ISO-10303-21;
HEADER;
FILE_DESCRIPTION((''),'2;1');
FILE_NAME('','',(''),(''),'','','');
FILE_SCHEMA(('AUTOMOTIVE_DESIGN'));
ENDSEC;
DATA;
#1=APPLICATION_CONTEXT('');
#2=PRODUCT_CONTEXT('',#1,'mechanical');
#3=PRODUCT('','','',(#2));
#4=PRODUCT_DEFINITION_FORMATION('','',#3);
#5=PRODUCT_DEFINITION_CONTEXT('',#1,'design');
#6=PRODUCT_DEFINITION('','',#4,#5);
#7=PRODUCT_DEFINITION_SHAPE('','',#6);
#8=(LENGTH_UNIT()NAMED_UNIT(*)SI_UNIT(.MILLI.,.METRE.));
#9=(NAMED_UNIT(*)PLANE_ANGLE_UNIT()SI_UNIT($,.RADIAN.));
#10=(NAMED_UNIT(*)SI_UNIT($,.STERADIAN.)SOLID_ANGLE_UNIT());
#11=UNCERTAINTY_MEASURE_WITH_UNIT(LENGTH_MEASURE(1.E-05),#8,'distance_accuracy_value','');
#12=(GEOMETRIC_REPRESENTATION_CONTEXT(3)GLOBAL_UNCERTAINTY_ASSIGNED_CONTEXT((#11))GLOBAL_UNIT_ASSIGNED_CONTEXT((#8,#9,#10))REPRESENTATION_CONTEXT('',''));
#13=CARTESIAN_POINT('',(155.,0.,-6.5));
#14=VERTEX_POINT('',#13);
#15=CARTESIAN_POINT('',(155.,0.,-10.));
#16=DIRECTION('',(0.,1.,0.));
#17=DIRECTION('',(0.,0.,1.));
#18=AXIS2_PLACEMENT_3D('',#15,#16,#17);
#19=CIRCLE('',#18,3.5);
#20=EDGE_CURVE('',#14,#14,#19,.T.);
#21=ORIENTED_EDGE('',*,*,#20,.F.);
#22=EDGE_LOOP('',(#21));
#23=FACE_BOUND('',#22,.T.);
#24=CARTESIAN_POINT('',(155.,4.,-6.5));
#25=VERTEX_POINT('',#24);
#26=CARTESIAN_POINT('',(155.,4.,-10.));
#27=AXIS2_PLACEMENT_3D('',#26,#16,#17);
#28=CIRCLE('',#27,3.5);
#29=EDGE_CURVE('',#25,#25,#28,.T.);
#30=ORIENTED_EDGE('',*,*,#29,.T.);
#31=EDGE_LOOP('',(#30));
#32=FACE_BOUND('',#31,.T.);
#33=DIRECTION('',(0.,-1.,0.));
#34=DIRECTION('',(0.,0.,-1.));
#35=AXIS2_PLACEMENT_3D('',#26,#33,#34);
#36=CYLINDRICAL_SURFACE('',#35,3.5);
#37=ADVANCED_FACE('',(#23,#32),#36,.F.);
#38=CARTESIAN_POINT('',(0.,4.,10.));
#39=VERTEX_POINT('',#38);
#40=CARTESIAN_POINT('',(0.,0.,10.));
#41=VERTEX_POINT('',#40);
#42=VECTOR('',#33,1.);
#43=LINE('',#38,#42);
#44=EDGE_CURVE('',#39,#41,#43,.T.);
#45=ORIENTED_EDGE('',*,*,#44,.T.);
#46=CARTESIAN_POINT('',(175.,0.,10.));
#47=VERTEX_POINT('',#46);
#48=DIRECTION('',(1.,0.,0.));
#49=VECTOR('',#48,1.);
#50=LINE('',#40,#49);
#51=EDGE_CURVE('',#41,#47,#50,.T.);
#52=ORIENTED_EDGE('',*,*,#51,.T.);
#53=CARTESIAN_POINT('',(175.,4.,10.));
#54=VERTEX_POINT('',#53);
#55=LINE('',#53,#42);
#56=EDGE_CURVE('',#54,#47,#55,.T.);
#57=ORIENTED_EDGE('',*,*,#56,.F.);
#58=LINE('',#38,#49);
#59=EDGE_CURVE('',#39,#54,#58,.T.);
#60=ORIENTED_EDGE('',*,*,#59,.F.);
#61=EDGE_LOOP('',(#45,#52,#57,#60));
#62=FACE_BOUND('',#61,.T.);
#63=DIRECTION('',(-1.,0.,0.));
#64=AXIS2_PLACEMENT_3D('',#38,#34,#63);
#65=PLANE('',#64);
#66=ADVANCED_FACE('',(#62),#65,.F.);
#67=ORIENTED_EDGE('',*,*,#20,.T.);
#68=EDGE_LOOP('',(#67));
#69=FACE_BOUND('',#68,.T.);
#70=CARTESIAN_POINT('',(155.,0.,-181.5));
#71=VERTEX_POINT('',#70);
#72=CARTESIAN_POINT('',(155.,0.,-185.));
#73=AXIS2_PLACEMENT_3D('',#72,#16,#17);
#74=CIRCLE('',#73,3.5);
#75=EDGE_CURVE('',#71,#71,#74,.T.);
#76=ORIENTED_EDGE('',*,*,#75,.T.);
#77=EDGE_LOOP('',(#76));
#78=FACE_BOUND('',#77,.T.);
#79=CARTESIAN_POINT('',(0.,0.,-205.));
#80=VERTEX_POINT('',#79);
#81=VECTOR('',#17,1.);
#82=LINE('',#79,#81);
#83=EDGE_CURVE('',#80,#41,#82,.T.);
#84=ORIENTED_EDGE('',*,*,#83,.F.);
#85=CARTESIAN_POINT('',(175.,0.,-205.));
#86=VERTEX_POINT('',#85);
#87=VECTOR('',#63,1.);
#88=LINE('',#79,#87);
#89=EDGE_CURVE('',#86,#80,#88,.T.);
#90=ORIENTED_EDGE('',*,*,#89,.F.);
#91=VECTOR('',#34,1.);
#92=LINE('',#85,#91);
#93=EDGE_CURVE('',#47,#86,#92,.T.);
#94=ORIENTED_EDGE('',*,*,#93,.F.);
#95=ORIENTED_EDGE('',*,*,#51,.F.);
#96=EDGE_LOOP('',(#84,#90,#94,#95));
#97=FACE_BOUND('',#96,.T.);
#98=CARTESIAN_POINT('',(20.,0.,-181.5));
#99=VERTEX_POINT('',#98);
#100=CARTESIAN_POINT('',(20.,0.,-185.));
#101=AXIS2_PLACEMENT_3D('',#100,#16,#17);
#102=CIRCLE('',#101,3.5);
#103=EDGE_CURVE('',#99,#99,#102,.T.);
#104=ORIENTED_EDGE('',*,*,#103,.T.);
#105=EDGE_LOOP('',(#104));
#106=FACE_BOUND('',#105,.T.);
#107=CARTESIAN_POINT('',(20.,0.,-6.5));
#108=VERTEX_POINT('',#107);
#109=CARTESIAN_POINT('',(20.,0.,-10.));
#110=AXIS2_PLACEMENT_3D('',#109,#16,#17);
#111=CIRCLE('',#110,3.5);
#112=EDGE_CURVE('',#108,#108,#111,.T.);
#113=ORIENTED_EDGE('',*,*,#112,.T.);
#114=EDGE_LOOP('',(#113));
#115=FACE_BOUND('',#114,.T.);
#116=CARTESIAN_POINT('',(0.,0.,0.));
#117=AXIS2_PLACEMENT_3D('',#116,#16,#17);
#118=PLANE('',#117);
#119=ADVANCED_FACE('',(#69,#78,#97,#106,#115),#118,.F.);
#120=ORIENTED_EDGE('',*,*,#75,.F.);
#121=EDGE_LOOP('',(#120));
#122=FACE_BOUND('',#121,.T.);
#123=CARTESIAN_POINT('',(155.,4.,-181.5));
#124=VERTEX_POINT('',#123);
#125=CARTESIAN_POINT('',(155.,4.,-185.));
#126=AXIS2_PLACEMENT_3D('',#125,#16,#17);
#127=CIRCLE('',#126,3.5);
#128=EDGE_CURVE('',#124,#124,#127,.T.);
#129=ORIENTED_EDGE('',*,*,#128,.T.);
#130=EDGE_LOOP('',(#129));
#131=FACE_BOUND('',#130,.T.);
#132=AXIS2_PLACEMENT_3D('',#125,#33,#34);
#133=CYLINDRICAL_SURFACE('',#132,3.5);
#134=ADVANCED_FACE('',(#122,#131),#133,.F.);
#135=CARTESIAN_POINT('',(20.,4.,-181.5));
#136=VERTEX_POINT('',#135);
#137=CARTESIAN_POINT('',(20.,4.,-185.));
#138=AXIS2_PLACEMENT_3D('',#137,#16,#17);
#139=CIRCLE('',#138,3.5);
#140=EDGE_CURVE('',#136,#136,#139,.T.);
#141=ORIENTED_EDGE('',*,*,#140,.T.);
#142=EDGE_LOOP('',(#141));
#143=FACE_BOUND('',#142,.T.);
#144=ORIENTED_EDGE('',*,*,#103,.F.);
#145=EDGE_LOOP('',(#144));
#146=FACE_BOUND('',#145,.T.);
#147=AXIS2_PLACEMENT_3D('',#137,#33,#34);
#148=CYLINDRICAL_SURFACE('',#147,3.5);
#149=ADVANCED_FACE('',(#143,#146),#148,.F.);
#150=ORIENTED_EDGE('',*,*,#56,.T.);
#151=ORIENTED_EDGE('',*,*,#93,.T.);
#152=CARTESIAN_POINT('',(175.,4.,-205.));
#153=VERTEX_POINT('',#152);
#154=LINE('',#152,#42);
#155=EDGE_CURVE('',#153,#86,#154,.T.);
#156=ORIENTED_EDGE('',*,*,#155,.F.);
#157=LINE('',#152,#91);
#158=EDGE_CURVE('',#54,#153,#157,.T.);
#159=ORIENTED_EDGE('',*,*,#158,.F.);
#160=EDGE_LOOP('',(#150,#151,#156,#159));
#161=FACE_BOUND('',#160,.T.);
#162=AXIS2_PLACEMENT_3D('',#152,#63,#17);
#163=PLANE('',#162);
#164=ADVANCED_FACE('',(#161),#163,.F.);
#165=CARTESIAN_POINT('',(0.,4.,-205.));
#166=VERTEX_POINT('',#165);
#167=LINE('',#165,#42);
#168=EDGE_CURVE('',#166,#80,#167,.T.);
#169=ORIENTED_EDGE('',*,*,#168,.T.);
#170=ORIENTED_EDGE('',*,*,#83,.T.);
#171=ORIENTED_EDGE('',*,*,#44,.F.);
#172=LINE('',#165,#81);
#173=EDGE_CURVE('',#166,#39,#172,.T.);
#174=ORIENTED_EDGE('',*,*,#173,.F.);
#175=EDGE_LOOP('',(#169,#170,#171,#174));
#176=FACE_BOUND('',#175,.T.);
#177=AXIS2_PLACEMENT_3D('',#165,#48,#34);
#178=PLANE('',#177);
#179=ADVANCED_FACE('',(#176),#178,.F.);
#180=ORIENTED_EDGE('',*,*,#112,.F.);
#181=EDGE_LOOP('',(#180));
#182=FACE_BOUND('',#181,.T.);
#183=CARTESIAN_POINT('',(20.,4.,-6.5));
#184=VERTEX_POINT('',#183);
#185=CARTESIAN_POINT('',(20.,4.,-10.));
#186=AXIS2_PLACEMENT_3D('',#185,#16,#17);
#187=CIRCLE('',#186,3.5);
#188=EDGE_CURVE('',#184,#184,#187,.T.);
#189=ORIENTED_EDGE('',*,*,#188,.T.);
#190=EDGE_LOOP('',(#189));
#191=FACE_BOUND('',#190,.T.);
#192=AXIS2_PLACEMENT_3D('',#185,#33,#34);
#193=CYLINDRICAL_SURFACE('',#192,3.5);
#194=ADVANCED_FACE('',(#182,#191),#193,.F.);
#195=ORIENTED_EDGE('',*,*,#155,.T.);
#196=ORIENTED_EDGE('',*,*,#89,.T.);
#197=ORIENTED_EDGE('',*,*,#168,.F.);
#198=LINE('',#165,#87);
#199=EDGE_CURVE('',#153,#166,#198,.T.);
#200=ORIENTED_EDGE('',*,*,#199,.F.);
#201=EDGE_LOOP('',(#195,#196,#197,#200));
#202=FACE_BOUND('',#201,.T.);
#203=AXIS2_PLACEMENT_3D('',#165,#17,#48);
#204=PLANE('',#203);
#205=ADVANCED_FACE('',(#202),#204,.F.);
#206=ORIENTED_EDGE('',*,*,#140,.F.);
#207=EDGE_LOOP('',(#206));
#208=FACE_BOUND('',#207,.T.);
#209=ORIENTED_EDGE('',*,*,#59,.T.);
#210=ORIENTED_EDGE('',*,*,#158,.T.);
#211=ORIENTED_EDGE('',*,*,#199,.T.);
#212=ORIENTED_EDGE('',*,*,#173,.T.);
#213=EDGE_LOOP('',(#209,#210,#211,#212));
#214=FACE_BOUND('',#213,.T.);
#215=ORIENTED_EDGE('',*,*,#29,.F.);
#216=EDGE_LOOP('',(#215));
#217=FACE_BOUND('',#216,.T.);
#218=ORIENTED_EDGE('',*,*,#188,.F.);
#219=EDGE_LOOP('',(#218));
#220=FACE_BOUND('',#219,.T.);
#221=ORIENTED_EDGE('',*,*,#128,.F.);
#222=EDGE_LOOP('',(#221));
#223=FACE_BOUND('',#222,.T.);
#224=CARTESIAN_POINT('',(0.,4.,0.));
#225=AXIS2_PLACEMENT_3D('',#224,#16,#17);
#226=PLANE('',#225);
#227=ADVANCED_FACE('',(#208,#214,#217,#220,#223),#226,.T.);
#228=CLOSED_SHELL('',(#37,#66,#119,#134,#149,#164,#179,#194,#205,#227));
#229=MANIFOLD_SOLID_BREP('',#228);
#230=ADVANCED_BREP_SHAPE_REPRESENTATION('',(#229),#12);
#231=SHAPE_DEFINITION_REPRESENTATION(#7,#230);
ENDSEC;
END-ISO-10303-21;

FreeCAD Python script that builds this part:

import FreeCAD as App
import Part
import Sketcher

V = App.Vector
Q = App.Units.Quantity

doc = App.newDocument("Part")
body = doc.addObject("PartDesign::Body", "Body")

# Sketch on XZ plane
sketch1 = doc.addObject("Sketcher::SketchObject", "Sketch")
body.addObject(sketch1)
sketch1.AttachmentSupport = (doc.XZ_Plane, [""])
sketch1.MapMode = "FlatFace"
sketch1.addGeometry([
    Part.LineSegment(V(0, -205, 0), V(0, 10, 0)),  # 0
    Part.LineSegment(V(0, 10, 0), V(175, 10, 0)),  # 1
    Part.LineSegment(V(175, 10, 0), V(175, -205, 0)),  # 2
    Part.LineSegment(V(175, -205, 0), V(0, -205, 0)),  # 3
    Part.Circle(V(20, -10, 0), V(0, 0, 1), 3.5),  # 4
    Part.Circle(V(155, -10, 0), V(0, 0, 1), 3.5),  # 5
    Part.Circle(V(20, -185, 0), V(0, 0, 1), 3.5),  # 6
    Part.Circle(V(155, -185, 0), V(0, 0, 1), 3.5),  # 7
], False)
sketch1.addConstraint([
    Sketcher.Constraint("Coincident", 0, 2, 1, 1),
    Sketcher.Constraint("Coincident", 1, 2, 2, 1),
    Sketcher.Constraint("Coincident", 2, 2, 3, 1),
    Sketcher.Constraint("Coincident", 3, 2, 0, 1),
    Sketcher.Constraint("Vertical", 0),
    Sketcher.Constraint("Horizontal", 1),
    Sketcher.Constraint("Vertical", 2),
    Sketcher.Constraint("Horizontal", 3),
    Sketcher.Constraint("Equal", 4, 5),
    Sketcher.Constraint("Equal", 5, 6),
    Sketcher.Constraint("Equal", 6, 7),
    Sketcher.Constraint("PointOnObject", 0, 2, -2),
    Sketcher.Constraint("Horizontal", 4, 3, 5, 3),
    Sketcher.Constraint("Horizontal", 6, 3, 7, 3),
    Sketcher.Constraint("Vertical", 4, 3, 6, 3),
    Sketcher.Constraint("Vertical", 5, 3, 7, 3),
    Sketcher.Constraint("Diameter", 4, Q("7 mm")),
    Sketcher.Constraint("DistanceX", 1, 1, 1, 2, Q("175 mm")),
    Sketcher.Constraint("DistanceY", 0, 1, 0, 2, Q("215 mm")),
    Sketcher.Constraint("DistanceX", -1, 1, 4, 3, Q("20 mm")),
    Sketcher.Constraint("DistanceY", 4, 3, -1, 1, Q("10 mm")),
    Sketcher.Constraint("DistanceX", -1, 1, 5, 3, Q("155 mm")),
    Sketcher.Constraint("DistanceY", 6, 3, -1, 1, Q("185 mm")),
    Sketcher.Constraint("DistanceY", -1, 1, 0, 2, Q("10 mm")),
])
pad1 = doc.addObject("PartDesign::Pad", "Pad")
body.addObject(pad1)
pad1.Profile = sketch1
pad1.Length = 4
pad1.Reversed = True

doc.recompute()
